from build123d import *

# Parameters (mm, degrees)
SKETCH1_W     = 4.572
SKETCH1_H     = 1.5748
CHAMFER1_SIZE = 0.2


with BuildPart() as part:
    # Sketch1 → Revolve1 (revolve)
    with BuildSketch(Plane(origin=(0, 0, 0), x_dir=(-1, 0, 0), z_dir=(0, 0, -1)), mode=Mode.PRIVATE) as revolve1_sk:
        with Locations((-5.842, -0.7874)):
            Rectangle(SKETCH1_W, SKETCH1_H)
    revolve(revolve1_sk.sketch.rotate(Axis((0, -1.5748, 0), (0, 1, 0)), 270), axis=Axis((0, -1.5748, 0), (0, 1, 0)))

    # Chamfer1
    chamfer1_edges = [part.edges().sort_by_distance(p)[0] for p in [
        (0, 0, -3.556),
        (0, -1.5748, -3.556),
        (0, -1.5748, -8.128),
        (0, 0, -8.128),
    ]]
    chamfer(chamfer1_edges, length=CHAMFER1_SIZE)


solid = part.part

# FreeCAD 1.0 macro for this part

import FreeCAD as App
import Part
import Sketcher
Q = App.Units.Quantity


def edges_at(feature, points):
    """Names of the edges that pass closest to the given points."""
    edges = feature.Shape.Edges
    near = lambda p: min(range(len(edges)), key=lambda i: edges[i].distToShape(Part.Vertex(*p))[0])
    return sorted({f"Edge{near(p) + 1}" for p in points})

doc = App.newDocument("Part")
body = doc.addObject("PartDesign::Body", "Body")

sketch1 = doc.addObject("Sketcher::SketchObject", "Sketch")
body.addObject(sketch1)
sketch1.AttachmentSupport = (doc.XY_Plane, [""])
sketch1.MapMode = "FlatFace"
sketch1.addGeometry([
    Part.LineSegment(App.Vector(8.1, 0, 0), App.Vector(8.1, -1.6, 0)),
    Part.LineSegment(App.Vector(8.1, -1.6, 0), App.Vector(3.6, -1.6, 0)),
    Part.LineSegment(App.Vector(3.6, -1.6, 0), App.Vector(3.6, 0, 0)),
    Part.LineSegment(App.Vector(3.6, 0, 0), App.Vector(8.1, 0, 0)),
], False)
sketch1.addConstraint([
    Sketcher.Constraint("Coincident", 0, 2, 1, 1),
    Sketcher.Constraint("Coincident", 1, 2, 2, 1),
    Sketcher.Constraint("Coincident", 2, 2, 3, 1),
    Sketcher.Constraint("Coincident", 3, 2, 0, 1),
    Sketcher.Constraint("Vertical", 0),
    Sketcher.Constraint("Horizontal", 1),
    Sketcher.Constraint("Vertical", 2),
    Sketcher.Constraint("Horizontal", 3),
    Sketcher.Constraint("PointOnObject", 2, 2, -1),
    Sketcher.Constraint("DistanceX", 1, 2, 1, 1, Q("0.18 in")),
    Sketcher.Constraint("DistanceY", 0, 2, 0, 1, Q("0.062 in")),
    Sketcher.Constraint("DistanceX", -1, 1, 0, 2, Q("0.32 in")),
])
revolution = doc.addObject("PartDesign::Revolution", "Revolution")
body.addObject(revolution)
revolution.Profile = sketch1
revolution.ReferenceAxis = (sketch1, ["V_Axis"])
revolution.Angle = 360
doc.recompute()

chamfer = doc.addObject("PartDesign::Chamfer", "Chamfer")
body.addObject(chamfer)
chamfer.Base = (revolution, edges_at(revolution, [
    (0, 0, -3.556),
    (0, -1.575, -3.556),
    (0, -1.575, -8.128),
    (0, 0, -8.128),
]))
chamfer.Size = 0.2

doc.recompute()
